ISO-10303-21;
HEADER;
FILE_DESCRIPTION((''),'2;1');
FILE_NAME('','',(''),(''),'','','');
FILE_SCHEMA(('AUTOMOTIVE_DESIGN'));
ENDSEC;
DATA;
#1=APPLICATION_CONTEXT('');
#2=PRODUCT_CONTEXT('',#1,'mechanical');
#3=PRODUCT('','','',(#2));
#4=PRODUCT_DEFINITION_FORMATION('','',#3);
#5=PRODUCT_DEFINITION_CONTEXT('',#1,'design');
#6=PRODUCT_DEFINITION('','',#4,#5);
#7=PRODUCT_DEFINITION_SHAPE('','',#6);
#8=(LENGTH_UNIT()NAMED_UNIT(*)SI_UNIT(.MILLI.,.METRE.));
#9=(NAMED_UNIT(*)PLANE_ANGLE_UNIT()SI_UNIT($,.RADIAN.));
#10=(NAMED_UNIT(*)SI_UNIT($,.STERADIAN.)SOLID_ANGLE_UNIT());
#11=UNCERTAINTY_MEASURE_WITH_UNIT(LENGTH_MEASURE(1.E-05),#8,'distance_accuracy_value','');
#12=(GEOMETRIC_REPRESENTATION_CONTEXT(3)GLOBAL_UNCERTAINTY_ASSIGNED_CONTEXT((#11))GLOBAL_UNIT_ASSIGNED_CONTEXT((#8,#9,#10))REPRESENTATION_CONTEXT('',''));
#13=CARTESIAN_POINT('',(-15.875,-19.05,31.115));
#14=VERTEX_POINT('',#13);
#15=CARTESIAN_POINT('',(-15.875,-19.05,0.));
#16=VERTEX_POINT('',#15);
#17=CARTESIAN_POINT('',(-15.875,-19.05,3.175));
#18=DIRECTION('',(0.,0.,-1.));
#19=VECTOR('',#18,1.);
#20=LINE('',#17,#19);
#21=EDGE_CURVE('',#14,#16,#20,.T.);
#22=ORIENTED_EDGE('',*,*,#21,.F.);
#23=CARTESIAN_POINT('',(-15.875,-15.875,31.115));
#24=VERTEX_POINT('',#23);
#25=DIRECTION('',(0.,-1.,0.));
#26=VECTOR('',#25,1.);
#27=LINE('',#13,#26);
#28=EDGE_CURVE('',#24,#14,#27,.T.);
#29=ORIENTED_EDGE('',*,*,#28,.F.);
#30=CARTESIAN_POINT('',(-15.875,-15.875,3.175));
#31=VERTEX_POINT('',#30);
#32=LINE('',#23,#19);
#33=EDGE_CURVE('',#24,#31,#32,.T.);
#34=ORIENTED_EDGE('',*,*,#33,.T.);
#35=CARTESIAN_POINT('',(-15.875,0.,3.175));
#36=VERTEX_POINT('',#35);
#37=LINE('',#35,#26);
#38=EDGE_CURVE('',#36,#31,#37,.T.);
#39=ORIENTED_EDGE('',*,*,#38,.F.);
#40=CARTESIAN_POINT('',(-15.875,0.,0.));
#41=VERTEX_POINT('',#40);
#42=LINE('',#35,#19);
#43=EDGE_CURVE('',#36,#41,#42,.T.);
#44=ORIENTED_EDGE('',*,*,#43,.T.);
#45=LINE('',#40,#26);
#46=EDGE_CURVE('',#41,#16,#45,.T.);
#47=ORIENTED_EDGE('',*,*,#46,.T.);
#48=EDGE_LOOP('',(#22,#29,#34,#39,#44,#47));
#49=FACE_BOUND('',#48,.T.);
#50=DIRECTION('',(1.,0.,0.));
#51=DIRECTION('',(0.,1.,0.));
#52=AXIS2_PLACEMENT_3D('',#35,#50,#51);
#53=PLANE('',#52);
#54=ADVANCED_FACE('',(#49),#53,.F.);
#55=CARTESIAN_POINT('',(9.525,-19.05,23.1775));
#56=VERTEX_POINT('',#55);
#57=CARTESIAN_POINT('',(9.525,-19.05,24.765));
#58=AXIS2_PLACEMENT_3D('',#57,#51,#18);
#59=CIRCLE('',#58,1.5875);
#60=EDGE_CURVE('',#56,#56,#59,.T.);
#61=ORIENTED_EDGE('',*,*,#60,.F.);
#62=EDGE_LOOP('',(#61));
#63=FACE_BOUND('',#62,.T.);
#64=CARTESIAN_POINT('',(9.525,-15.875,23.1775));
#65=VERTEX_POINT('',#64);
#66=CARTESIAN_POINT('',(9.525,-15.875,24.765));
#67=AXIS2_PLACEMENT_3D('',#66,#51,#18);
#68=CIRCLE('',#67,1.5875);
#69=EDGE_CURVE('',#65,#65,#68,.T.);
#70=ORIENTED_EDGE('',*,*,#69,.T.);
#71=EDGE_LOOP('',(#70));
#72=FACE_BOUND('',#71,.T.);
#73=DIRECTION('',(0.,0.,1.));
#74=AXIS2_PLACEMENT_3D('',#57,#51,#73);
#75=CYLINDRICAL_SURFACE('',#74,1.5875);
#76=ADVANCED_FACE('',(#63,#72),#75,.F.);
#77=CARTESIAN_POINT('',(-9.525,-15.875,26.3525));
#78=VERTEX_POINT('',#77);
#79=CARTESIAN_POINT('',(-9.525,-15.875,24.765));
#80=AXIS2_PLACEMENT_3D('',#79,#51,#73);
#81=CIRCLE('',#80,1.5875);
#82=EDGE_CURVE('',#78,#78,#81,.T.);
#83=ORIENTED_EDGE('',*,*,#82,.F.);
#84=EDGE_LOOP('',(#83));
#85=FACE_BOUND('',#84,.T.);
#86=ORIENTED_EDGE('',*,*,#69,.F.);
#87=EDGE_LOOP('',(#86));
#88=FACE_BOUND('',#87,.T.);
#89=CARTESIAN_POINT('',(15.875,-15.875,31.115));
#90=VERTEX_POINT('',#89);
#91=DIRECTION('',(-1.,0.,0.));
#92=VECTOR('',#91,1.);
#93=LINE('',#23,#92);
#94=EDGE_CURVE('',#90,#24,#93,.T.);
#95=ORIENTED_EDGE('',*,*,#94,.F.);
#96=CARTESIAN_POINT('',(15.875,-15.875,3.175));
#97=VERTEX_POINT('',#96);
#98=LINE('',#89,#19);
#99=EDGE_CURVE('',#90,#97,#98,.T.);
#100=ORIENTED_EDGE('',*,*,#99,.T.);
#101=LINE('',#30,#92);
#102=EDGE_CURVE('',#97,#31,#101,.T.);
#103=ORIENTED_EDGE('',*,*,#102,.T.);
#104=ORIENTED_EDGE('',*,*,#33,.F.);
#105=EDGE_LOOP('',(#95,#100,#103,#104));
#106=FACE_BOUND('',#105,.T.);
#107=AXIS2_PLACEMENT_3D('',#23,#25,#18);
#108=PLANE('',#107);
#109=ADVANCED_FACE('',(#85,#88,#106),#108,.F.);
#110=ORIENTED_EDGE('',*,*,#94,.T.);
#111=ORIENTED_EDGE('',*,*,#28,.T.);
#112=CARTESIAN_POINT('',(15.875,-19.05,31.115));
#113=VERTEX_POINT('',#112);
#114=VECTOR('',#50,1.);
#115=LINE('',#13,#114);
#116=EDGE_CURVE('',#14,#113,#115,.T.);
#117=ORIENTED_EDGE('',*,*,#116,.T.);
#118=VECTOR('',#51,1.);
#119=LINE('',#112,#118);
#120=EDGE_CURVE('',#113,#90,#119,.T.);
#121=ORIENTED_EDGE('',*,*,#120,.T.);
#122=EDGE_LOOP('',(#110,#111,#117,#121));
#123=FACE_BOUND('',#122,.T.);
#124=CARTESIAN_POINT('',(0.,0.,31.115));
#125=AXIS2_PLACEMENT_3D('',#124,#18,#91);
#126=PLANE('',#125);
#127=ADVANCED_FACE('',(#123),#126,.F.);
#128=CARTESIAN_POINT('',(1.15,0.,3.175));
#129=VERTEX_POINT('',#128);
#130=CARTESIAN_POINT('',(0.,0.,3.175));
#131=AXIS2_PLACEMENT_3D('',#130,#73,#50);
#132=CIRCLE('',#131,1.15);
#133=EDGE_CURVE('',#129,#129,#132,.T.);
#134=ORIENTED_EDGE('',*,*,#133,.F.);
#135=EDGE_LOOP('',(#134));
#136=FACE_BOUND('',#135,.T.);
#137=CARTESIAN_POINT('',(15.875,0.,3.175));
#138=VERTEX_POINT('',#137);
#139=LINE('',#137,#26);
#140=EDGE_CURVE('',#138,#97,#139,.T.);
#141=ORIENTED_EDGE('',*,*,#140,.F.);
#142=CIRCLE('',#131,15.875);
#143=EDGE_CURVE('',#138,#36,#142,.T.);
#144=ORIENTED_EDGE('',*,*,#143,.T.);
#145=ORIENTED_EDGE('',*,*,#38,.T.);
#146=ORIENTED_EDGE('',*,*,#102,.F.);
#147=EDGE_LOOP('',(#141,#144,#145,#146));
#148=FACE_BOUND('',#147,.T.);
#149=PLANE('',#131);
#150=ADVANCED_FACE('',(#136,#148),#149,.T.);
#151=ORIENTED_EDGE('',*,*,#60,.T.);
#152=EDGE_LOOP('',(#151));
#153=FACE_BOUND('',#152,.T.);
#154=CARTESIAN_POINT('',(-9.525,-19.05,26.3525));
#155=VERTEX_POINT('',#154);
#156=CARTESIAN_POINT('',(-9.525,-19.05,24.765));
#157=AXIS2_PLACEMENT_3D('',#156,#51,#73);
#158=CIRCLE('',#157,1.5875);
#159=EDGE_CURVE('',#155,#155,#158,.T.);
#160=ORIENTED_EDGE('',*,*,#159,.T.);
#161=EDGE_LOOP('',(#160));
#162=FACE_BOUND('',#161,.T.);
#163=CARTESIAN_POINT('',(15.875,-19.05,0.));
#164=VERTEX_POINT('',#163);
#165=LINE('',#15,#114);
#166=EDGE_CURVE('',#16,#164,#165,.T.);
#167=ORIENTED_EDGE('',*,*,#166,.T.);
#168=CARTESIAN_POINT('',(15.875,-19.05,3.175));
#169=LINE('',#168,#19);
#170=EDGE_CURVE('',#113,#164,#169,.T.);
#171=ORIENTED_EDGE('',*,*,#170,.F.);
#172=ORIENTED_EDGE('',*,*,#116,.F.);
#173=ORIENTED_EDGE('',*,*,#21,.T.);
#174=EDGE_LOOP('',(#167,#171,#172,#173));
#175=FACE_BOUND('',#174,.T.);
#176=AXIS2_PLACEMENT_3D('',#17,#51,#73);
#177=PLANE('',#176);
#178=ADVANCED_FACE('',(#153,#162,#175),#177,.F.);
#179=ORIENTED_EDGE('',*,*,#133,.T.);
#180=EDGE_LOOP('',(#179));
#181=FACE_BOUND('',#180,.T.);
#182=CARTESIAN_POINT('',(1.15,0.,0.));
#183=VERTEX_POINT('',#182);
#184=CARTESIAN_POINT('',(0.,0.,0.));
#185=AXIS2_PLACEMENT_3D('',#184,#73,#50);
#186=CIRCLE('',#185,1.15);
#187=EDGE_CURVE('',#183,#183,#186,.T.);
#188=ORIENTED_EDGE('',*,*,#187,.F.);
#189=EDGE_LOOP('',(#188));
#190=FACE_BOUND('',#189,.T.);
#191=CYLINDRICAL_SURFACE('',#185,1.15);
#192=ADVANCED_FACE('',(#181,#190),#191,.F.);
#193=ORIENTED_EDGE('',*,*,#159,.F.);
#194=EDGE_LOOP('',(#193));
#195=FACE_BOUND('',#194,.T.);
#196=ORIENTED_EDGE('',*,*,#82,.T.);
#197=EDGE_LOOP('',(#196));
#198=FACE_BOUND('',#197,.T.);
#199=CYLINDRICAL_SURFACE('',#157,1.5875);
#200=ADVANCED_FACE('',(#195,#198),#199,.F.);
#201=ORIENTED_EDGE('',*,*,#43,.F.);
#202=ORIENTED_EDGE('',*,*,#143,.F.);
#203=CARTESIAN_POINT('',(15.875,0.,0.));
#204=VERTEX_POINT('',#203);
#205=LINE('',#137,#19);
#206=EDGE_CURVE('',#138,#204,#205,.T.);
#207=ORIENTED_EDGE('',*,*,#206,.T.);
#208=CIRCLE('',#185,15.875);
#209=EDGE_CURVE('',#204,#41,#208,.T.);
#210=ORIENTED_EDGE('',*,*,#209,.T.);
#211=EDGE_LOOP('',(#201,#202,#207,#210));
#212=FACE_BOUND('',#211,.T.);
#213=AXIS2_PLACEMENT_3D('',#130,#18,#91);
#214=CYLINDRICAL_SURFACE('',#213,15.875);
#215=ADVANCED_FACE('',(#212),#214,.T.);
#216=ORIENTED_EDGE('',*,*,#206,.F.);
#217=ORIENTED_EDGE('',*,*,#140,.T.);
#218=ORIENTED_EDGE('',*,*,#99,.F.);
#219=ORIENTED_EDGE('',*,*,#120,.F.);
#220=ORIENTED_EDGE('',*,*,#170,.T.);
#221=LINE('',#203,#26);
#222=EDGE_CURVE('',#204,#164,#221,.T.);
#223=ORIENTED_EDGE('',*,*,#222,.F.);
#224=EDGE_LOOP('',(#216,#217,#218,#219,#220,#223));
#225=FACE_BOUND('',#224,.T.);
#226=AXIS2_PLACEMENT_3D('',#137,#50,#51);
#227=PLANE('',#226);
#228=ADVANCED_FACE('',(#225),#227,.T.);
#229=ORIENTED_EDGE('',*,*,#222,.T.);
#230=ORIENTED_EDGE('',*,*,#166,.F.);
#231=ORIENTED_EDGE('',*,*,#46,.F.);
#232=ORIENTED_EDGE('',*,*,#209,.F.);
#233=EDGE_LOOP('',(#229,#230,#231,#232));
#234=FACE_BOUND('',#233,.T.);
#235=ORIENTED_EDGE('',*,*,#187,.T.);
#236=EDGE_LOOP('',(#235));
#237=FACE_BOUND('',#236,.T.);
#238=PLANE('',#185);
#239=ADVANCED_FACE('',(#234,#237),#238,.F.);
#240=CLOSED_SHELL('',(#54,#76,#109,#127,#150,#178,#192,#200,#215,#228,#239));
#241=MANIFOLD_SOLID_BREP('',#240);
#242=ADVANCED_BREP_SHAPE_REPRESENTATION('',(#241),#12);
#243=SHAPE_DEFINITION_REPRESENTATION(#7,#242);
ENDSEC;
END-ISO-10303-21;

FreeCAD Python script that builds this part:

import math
import FreeCAD as App
import Part
import Sketcher
Q = App.Units.Quantity

doc = App.newDocument("Part")
params = doc.addObject("Spreadsheet::Sheet", "Params")
for row, (alias, value) in enumerate([
    ("sketch1_radius", "0.625 in"),
    ("sketch1_height", "0.75 in"),
    ("pad1_length", "0.125 in"),
    ("sketch2_width", "1.25 in"),
    ("sketch2_height", "0.125 in"),
    ("pad2_length", "1.1 in"),
    ("sketch3_diameter", "0.125 in"),
], start=1):
    params.set(f"A{row}", alias)
    params.set(f"B{row}", "=" + value)
    params.setAlias(f"B{row}", alias)

body = doc.addObject("PartDesign::Body", "Body")

sketch1 = doc.addObject("Sketcher::SketchObject", "Sketch")
body.addObject(sketch1)
sketch1.AttachmentSupport = (doc.XY_Plane, [""])
sketch1.MapMode = "FlatFace"
sketch1.addGeometry([
    Part.ArcOfCircle(Part.Circle(App.Vector(0, 0, 0), App.Vector(0, 0, 1), 15.875), math.radians(0), math.radians(180)),
    Part.LineSegment(App.Vector(-15.875, 0, 0), App.Vector(-15.875, -19.05, 0)),
    Part.LineSegment(App.Vector(-15.875, -19.05, 0), App.Vector(15.875, -19.05, 0)),
    Part.LineSegment(App.Vector(15.875, -19.05, 0), App.Vector(15.875, 0, 0)),
], False)
sketch1.addConstraint([
    Sketcher.Constraint("Tangent", 0, 2, 1, 1),
    Sketcher.Constraint("Coincident", 1, 2, 2, 1),
    Sketcher.Constraint("Coincident", 2, 2, 3, 1),
    Sketcher.Constraint("Tangent", 3, 2, 0, 1),
    Sketcher.Constraint("Vertical", 1),
    Sketcher.Constraint("Horizontal", 2),
    Sketcher.Constraint("Vertical", 3),
    Sketcher.Constraint("Coincident", 0, 3, -1, 1),
    Sketcher.Constraint("Radius", 0, Q("0.625 in")),
    Sketcher.Constraint("DistanceY", 1, 2, 1, 1, Q("0.75 in")),
])
sketch1.setExpression("Constraints[8]", "Params.sketch1_radius")
sketch1.setExpression("Constraints[9]", "Params.sketch1_height")
pad1 = doc.addObject("PartDesign::Pad", "Pad")
body.addObject(pad1)
pad1.Profile = sketch1
pad1.setExpression("Length", "Params.pad1_length")

sketch2 = doc.addObject("Sketcher::SketchObject", "Sketch001")
body.addObject(sketch2)
sketch2.AttachmentSupport = (doc.XY_Plane, [""])
sketch2.MapMode = "FlatFace"
sketch2.AttachmentOffset = App.Placement(App.Vector(0, 0, 0.125 * 25.4), App.Rotation())
sketch2.addGeometry([
    Part.LineSegment(App.Vector(-15.875, -15.875, 0), App.Vector(-15.875, -19.05, 0)),
    Part.LineSegment(App.Vector(-15.875, -19.05, 0), App.Vector(15.875, -19.05, 0)),
    Part.LineSegment(App.Vector(15.875, -19.05, 0), App.Vector(15.875, -15.875, 0)),
    Part.LineSegment(App.Vector(15.875, -15.875, 0), App.Vector(-15.875, -15.875, 0)),
], False)
sketch2.addConstraint([
    Sketcher.Constraint("Coincident", 0, 2, 1, 1),
    Sketcher.Constraint("Coincident", 1, 2, 2, 1),
    Sketcher.Constraint("Coincident", 2, 2, 3, 1),
    Sketcher.Constraint("Coincident", 3, 2, 0, 1),
    Sketcher.Constraint("Vertical", 0),
    Sketcher.Constraint("Horizontal", 1),
    Sketcher.Constraint("Vertical", 2),
    Sketcher.Constraint("Horizontal", 3),
    Sketcher.Constraint("DistanceX", 1, 1, 1, 2, Q("1.25 in")),
    Sketcher.Constraint("DistanceY", 0, 2, 0, 1, Q("0.125 in")),
    Sketcher.Constraint("DistanceY", 0, 2, -1, 1, Q("0.75 in")),
    Sketcher.Constraint("DistanceX", 0, 2, -1, 1, Q("0.625 in")),
])
sketch2.setExpression("Constraints[8]", "Params.sketch2_width")
sketch2.setExpression("Constraints[9]", "Params.sketch2_height")
pad2 = doc.addObject("PartDesign::Pad", "Pad001")
body.addObject(pad2)
pad2.Profile = sketch2
pad2.setExpression("Length", "Params.pad2_length")

sketch3 = doc.addObject("Sketcher::SketchObject", "Sketch002")
body.addObject(sketch3)
sketch3.AttachmentSupport = (doc.XZ_Plane, [""])
sketch3.MapMode = "FlatFace"
sketch3.AttachmentOffset = App.Placement(App.Vector(0, 0, 0.625 * 25.4), App.Rotation())
sketch3.addGeometry([
    Part.Circle(App.Vector(-9.525, 24.765, 0), App.Vector(0, 0, 1), 1.5875),
    Part.Circle(App.Vector(9.525, 24.765, 0), App.Vector(0, 0, 1), 1.5875),
], False)
sketch3.addConstraint([
    Sketcher.Constraint("Equal", 0, 1),
    Sketcher.Constraint("Symmetric", 0, 3, 1, 3, -2),
    Sketcher.Constraint("Diameter", 0, Q("0.125 in")),
    Sketcher.Constraint("DistanceX", 0, 3, 1, 3, Q("0.75 in")),
    Sketcher.Constraint("DistanceY", -1, 1, 0, 3, Q("0.975 in")),
])
sketch3.setExpression("Constraints[2]", "Params.sketch3_diameter")
pocket1 = doc.addObject("PartDesign::Pocket", "Pocket")
body.addObject(pocket1)
pocket1.Profile = sketch3
pocket1.Type = "ThroughAll"
pocket1.Reversed = True

sketch4 = doc.addObject("Sketcher::SketchObject", "Sketch003")
body.addObject(sketch4)
sketch4.AttachmentSupport = (doc.XY_Plane, [""])
sketch4.MapMode = "FlatFace"
sketch4.AttachmentOffset = App.Placement(App.Vector(0, 0, 0.125 * 25.4), App.Rotation())
sketch4.addGeometry(Part.Circle(App.Vector(0, 0, 0), App.Vector(0, 0, 1), 1.15), False)
sketch4.addConstraint([
    Sketcher.Constraint("Coincident", 0, 3, -1, 1),
    Sketcher.Constraint("Diameter", 0, 2.3),
])
pocket2 = doc.addObject("PartDesign::Pocket", "Pocket001")
body.addObject(pocket2)
pocket2.Profile = sketch4
pocket2.Type = "ThroughAll"

doc.recompute()
